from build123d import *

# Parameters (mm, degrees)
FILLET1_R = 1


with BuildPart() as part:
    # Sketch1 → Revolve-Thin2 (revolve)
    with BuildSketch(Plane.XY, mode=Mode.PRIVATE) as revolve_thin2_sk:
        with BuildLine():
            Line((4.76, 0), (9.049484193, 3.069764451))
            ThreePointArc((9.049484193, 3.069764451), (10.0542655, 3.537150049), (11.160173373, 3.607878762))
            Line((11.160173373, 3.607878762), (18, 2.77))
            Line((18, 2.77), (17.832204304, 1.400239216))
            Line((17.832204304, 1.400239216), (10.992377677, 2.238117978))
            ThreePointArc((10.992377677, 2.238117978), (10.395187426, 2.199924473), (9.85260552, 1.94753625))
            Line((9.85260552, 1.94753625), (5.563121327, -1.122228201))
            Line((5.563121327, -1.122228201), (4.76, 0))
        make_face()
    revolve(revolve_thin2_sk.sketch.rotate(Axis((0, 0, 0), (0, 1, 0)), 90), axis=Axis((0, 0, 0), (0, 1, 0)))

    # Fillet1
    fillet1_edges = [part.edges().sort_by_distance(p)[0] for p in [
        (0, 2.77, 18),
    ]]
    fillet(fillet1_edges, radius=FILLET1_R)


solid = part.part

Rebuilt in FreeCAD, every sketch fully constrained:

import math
import FreeCAD as App
import Part
import Sketcher

V = App.Vector


def edges_at(feature, points):
    """Names of the edges that pass closest to the given points."""
    edges = feature.Shape.Edges
    near = lambda p: min(range(len(edges)), key=lambda i: edges[i].distToShape(Part.Vertex(*p))[0])
    return sorted({f"Edge{near(p) + 1}" for p in points})

doc = App.newDocument("Part")
body = doc.addObject("PartDesign::Body", "Body")

# Sketch on XY plane
sketch1 = doc.addObject("Sketcher::SketchObject", "Sketch")
body.addObject(sketch1)
sketch1.AttachmentSupport = (doc.XY_Plane, [""])
sketch1.MapMode = "FlatFace"
sketch1.addGeometry([
    Part.LineSegment(V(9, 3.1, 0), V(4.8, 0, 0)),  # 0
    Part.LineSegment(V(4.8, 0, 0), V(5.6, -1.1, 0)),  # 1
    Part.LineSegment(V(5.6, -1.1, 0), V(9.9, 1.9, 0)),  # 2
    Part.ArcOfCircle(Part.Circle(V(10.8, 0.6, 0), V(0, 0, 1), 1.6), math.radians(83), math.radians(126)),  # 3
    Part.LineSegment(V(11, 2.2, 0), V(17.8, 1.4, 0)),  # 4
    Part.LineSegment(V(17.8, 1.4, 0), V(18, 2.8, 0)),  # 5
    Part.LineSegment(V(18, 2.8, 0), V(11.2, 3.6, 0)),  # 6
    Part.ArcOfCircle(Part.Circle(V(10.8, 0.6, 0), V(0, 0, 1), 3), math.radians(83), math.radians(126)),  # 7
], False)
sketch1.addConstraint([
    Sketcher.Constraint("Coincident", 0, 2, 1, 1),
    Sketcher.Constraint("Coincident", 1, 2, 2, 1),
    Sketcher.Constraint("Tangent", 2, 2, 3, 2),
    Sketcher.Constraint("Tangent", 3, 1, 4, 1),
    Sketcher.Constraint("Coincident", 4, 2, 5, 1),
    Sketcher.Constraint("Coincident", 5, 2, 6, 1),
    Sketcher.Constraint("Tangent", 6, 2, 7, 1),
    Sketcher.Constraint("Tangent", 7, 2, 0, 1),
    Sketcher.Constraint("Coincident", 7, 3, 3, 3),
    Sketcher.Constraint("PointOnObject", 0, 2, -1),
    Sketcher.Constraint("Perpendicular", 0, 1),
    Sketcher.Constraint("Perpendicular", 1, 2),
    Sketcher.Constraint("Perpendicular", 4, 5),
    Sketcher.Constraint("Perpendicular", 5, 6),
    Sketcher.Constraint("Radius", 7, 3.0),
    Sketcher.Constraint("Radius", 3, 1.62),
    Sketcher.Constraint("DistanceX", -1, 1, 5, 2, 18.0),
    Sketcher.Constraint("DistanceX", -1, 1, 0, 2, 4.76),
    Sketcher.Constraint("DistanceY", -1, 1, 5, 2, 2.77),
    Sketcher.Constraint("DistanceX", -1, 1, 3, 3, 10.7954),
    Sketcher.Constraint("DistanceY", 3, 3, 2, 2, 1.317398),
])
revolution = doc.addObject("PartDesign::Revolution", "Revolution")
body.addObject(revolution)
revolution.Profile = sketch1
revolution.ReferenceAxis = (sketch1, ["V_Axis"])
revolution.Angle = 360
doc.recompute()

fillet = doc.addObject("PartDesign::Fillet", "Fillet")
body.addObject(fillet)
fillet.Base = (revolution, edges_at(revolution, [(0, 2.77, 18)]))
fillet.Radius = 1

doc.recompute()
